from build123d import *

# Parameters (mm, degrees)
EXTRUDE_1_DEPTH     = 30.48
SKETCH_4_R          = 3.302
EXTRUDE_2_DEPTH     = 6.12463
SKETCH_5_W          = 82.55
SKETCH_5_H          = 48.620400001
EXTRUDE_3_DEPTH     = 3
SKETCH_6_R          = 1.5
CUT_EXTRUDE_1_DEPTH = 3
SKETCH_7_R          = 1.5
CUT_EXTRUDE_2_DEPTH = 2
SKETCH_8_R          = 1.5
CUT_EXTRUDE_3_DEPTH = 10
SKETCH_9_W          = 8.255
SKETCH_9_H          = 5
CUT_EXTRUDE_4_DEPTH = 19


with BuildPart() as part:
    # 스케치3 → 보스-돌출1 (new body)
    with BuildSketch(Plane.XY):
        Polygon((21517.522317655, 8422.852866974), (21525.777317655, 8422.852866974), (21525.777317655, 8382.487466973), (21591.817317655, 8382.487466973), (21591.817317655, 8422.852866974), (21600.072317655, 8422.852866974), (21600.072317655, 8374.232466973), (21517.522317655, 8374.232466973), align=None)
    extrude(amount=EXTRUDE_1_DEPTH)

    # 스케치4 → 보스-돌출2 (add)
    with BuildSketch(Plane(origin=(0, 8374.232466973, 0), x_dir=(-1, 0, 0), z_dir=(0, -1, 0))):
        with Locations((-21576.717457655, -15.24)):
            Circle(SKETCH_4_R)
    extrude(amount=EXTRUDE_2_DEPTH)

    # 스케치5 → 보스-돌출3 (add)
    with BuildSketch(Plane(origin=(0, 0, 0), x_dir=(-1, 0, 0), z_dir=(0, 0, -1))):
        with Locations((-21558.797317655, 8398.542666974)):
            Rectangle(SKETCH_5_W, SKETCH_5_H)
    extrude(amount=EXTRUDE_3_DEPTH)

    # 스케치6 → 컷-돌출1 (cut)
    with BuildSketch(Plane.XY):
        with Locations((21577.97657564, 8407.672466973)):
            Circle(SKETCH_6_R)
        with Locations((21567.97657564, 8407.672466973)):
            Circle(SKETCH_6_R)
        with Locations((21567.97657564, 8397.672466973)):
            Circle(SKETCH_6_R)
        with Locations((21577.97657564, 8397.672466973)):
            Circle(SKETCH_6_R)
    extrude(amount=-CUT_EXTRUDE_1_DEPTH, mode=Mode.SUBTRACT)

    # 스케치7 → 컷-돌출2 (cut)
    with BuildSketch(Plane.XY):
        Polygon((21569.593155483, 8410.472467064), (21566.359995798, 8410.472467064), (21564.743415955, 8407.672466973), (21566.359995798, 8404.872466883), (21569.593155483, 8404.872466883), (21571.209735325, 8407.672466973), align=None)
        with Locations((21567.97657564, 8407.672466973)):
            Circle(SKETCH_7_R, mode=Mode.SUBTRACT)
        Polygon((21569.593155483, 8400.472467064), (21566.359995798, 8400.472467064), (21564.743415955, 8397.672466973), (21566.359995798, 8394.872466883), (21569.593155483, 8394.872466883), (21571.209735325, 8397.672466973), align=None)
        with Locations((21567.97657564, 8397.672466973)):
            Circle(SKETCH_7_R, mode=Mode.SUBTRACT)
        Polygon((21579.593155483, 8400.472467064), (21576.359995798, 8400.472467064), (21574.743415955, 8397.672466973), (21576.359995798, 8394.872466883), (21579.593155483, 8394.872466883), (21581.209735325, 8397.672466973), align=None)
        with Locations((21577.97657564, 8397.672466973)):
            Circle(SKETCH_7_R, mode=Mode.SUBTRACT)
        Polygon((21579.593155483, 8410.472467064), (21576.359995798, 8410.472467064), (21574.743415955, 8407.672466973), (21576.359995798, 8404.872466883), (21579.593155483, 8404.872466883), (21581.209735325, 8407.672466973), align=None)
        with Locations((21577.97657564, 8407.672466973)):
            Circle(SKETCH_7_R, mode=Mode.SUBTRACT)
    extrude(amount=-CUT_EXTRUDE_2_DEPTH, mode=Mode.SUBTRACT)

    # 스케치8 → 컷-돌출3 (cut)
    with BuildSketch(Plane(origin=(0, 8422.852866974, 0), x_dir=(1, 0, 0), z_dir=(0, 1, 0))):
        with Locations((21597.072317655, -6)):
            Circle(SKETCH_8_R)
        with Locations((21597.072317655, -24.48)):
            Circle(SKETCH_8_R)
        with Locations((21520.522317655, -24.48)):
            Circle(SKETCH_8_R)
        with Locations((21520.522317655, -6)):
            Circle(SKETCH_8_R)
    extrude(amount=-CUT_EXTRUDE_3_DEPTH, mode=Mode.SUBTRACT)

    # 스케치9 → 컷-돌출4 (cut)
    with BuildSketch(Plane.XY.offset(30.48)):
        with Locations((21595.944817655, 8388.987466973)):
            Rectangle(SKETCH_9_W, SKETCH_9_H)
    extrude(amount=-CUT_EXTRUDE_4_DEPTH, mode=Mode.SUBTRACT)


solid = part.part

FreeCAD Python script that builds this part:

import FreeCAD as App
import Part
import Sketcher
Q = App.Units.Quantity

doc = App.newDocument("Part")
body = doc.addObject("PartDesign::Body", "Body")

# Sketch on XY plane
sketch1 = body.newObject("Sketcher::SketchObject", "Sketch")
sketch1.AttachmentSupport = (doc.getObject("XY_Plane"), [""])
sketch1.MapMode = "FlatFace"
sketch1.addGeometry(Part.LineSegment(App.Vector(21525.777318, 8422.852867, 0), App.Vector(21517.522318, 8422.852867, 0)), False)
sketch1.addGeometry(Part.LineSegment(App.Vector(21517.522318, 8422.852867, 0), App.Vector(21517.522318, 8374.232467, 0)), False)
sketch1.addGeometry(Part.LineSegment(App.Vector(21517.522318, 8374.232467, 0), App.Vector(21600.072318, 8374.232467, 0)), False)
sketch1.addGeometry(Part.LineSegment(App.Vector(21600.072318, 8374.232467, 0), App.Vector(21600.072318, 8422.852867, 0)), False)
sketch1.addGeometry(Part.LineSegment(App.Vector(21600.072318, 8422.852867, 0), App.Vector(21591.817318, 8422.852867, 0)), False)
sketch1.addGeometry(Part.LineSegment(App.Vector(21591.817318, 8422.852867, 0), App.Vector(21591.817318, 8382.487467, 0)), False)
sketch1.addGeometry(Part.LineSegment(App.Vector(21591.817318, 8382.487467, 0), App.Vector(21525.777318, 8382.487467, 0)), False)
sketch1.addGeometry(Part.LineSegment(App.Vector(21525.777318, 8382.487467, 0), App.Vector(21525.777318, 8422.852867, 0)), False)
sketch1.addConstraint(Sketcher.Constraint("Coincident", 0, 2, 1, 1))
sketch1.addConstraint(Sketcher.Constraint("Coincident", 1, 2, 2, 1))
sketch1.addConstraint(Sketcher.Constraint("Coincident", 2, 2, 3, 1))
sketch1.addConstraint(Sketcher.Constraint("Coincident", 3, 2, 4, 1))
sketch1.addConstraint(Sketcher.Constraint("Coincident", 4, 2, 5, 1))
sketch1.addConstraint(Sketcher.Constraint("Coincident", 5, 2, 6, 1))
sketch1.addConstraint(Sketcher.Constraint("Coincident", 6, 2, 7, 1))
sketch1.addConstraint(Sketcher.Constraint("Coincident", 7, 2, 0, 1))
sketch1.addConstraint(Sketcher.Constraint("Horizontal", 0))
sketch1.addConstraint(Sketcher.Constraint("Vertical", 1))
sketch1.addConstraint(Sketcher.Constraint("Horizontal", 2))
sketch1.addConstraint(Sketcher.Constraint("Vertical", 3))
sketch1.addConstraint(Sketcher.Constraint("Horizontal", 4))
sketch1.addConstraint(Sketcher.Constraint("Vertical", 5))
sketch1.addConstraint(Sketcher.Constraint("Horizontal", 6))
sketch1.addConstraint(Sketcher.Constraint("Vertical", 7))
sketch1.addConstraint(Sketcher.Constraint("Horizontal", 0, 2, 3, 2))
sketch1.addConstraint(Sketcher.Constraint("Equal", 0, 4))
sketch1.addConstraint(Sketcher.Constraint("DistanceX", 2, 1, 2, 2, 82.55))
sketch1.addConstraint(Sketcher.Constraint("DistanceX", 6, 2, 6, 1, 66.04))
sketch1.addConstraint(Sketcher.Constraint("DistanceY", 1, 2, 1, 1, 48.6204))
sketch1.addConstraint(Sketcher.Constraint("DistanceY", 5, 2, 5, 1, 40.3654))
sketch1.addConstraint(Sketcher.Constraint("DistanceX", -1, 1, 0, 2, 21517.522318))
sketch1.addConstraint(Sketcher.Constraint("DistanceY", -1, 1, 0, 2, 8422.852867))
pad1 = body.newObject("PartDesign::Pad", "Pad")
pad1.Profile = sketch1
pad1.Length = 30.48

# Sketch on XZ plane
sketch2 = body.newObject("Sketcher::SketchObject", "Sketch001")
sketch2.AttachmentSupport = (doc.getObject("XZ_Plane"), [""])
sketch2.MapMode = "FlatFace"
sketch2.AttachmentOffset = App.Placement(App.Vector(0, 0, -8374.232467), App.Rotation())
sketch2.addGeometry(Part.Circle(App.Vector(21576.717458, 15.24, 0), App.Vector(0, 0, 1), 3.302), False)
sketch2.addConstraint(Sketcher.Constraint("Diameter", 0, 6.604))
sketch2.addConstraint(Sketcher.Constraint("DistanceY", -1, 1, 0, 3, 15.24))
sketch2.addConstraint(Sketcher.Constraint("DistanceX", -1, 1, 0, 3, 21576.717458))
pad2 = body.newObject("PartDesign::Pad", "Pad001")
pad2.Profile = sketch2
pad2.Length = 6.12463

# Sketch on XY plane
sketch3 = body.newObject("Sketcher::SketchObject", "Sketch002")
sketch3.AttachmentSupport = (doc.getObject("XY_Plane"), [""])
sketch3.MapMode = "FlatFace"
sketch3.addGeometry(Part.LineSegment(App.Vector(21600.072318, 8422.852867, 0), App.Vector(21600.072318, 8374.232467, 0)), False)
sketch3.addGeometry(Part.LineSegment(App.Vector(21600.072318, 8374.232467, 0), App.Vector(21517.522318, 8374.232467, 0)), False)
sketch3.addGeometry(Part.LineSegment(App.Vector(21517.522318, 8374.232467, 0), App.Vector(21517.522318, 8422.852867, 0)), False)
sketch3.addGeometry(Part.LineSegment(App.Vector(21517.522318, 8422.852867, 0), App.Vector(21600.072318, 8422.852867, 0)), False)
sketch3.addConstraint(Sketcher.Constraint("Coincident", 0, 2, 1, 1))
sketch3.addConstraint(Sketcher.Constraint("Coincident", 1, 2, 2, 1))
sketch3.addConstraint(Sketcher.Constraint("Coincident", 2, 2, 3, 1))
sketch3.addConstraint(Sketcher.Constraint("Coincident", 3, 2, 0, 1))
sketch3.addConstraint(Sketcher.Constraint("Vertical", 0))
sketch3.addConstraint(Sketcher.Constraint("Horizontal", 1))
sketch3.addConstraint(Sketcher.Constraint("Vertical", 2))
sketch3.addConstraint(Sketcher.Constraint("Horizontal", 3))
sketch3.addConstraint(Sketcher.Constraint("DistanceX", 1, 2, 1, 1, 82.55))
sketch3.addConstraint(Sketcher.Constraint("DistanceY", 0, 2, 0, 1, 48.6204))
sketch3.addConstraint(Sketcher.Constraint("DistanceX", -1, 1, 0, 2, 21600.072318))
sketch3.addConstraint(Sketcher.Constraint("DistanceY", -1, 1, 0, 2, 8374.232467))
pad3 = body.newObject("PartDesign::Pad", "Pad002")
pad3.Profile = sketch3
pad3.Length = 3
pad3.Reversed = True

# Sketch on XY plane
sketch4 = body.newObject("Sketcher::SketchObject", "Sketch003")
sketch4.AttachmentSupport = (doc.getObject("XY_Plane"), [""])
sketch4.MapMode = "FlatFace"
sketch4.addGeometry(Part.Circle(App.Vector(21577.976576, 8407.672467, 0), App.Vector(0, 0, 1), 1.5), False)
sketch4.addGeometry(Part.Circle(App.Vector(21567.976576, 8407.672467, 0), App.Vector(0, 0, 1), 1.5), False)
sketch4.addGeometry(Part.Circle(App.Vector(21567.976576, 8397.672467, 0), App.Vector(0, 0, 1), 1.5), False)
sketch4.addGeometry(Part.Circle(App.Vector(21577.976576, 8397.672467, 0), App.Vector(0, 0, 1), 1.5), False)
sketch4.addConstraint(Sketcher.Constraint("Equal", 0, 1))
sketch4.addConstraint(Sketcher.Constraint("Equal", 1, 2))
sketch4.addConstraint(Sketcher.Constraint("Equal", 2, 3))
sketch4.addConstraint(Sketcher.Constraint("Horizontal", 0, 3, 1, 3))
sketch4.addConstraint(Sketcher.Constraint("Horizontal", 2, 3, 3, 3))
sketch4.addConstraint(Sketcher.Constraint("Vertical", 1, 3, 2, 3))
sketch4.addConstraint(Sketcher.Constraint("Vertical", 0, 3, 3, 3))
sketch4.addConstraint(Sketcher.Constraint("Diameter", 0, 3.0))
sketch4.addConstraint(Sketcher.Constraint("DistanceX", 1, 3, 0, 3, 10.0))
sketch4.addConstraint(Sketcher.Constraint("DistanceY", 2, 3, 1, 3, 10.0))
sketch4.addConstraint(Sketcher.Constraint("DistanceX", -1, 1, 0, 3, 21577.976576))
sketch4.addConstraint(Sketcher.Constraint("DistanceY", -1, 1, 0, 3, 8407.672467))
pocket1 = body.newObject("PartDesign::Pocket", "Pocket")
pocket1.Profile = sketch4
pocket1.Length = 3

# Sketch on XY plane
sketch5 = body.newObject("Sketcher::SketchObject", "Sketch004")
sketch5.AttachmentSupport = (doc.getObject("XY_Plane"), [""])
sketch5.MapMode = "FlatFace"
sketch5.addGeometry(Part.LineSegment(App.Vector(21569.593155, 8410.472467, 0), App.Vector(21566.359996, 8410.472467, 0)), False)
sketch5.addGeometry(Part.LineSegment(App.Vector(21566.359996, 8410.472467, 0), App.Vector(21564.743416, 8407.672467, 0)), False)
sketch5.addGeometry(Part.LineSegment(App.Vector(21564.743416, 8407.672467, 0), App.Vector(21566.359996, 8404.872467, 0)), False)
sketch5.addGeometry(Part.LineSegment(App.Vector(21566.359996, 8404.872467, 0), App.Vector(21569.593155, 8404.872467, 0)), False)
sketch5.addGeometry(Part.LineSegment(App.Vector(21569.593155, 8404.872467, 0), App.Vector(21571.209735, 8407.672467, 0)), False)
sketch5.addGeometry(Part.LineSegment(App.Vector(21571.209735, 8407.672467, 0), App.Vector(21569.593155, 8410.472467, 0)), False)
sketch5.addGeometry(Part.Circle(App.Vector(21567.976576, 8407.672467, 0), App.Vector(0, 0, 1), 1.5), False)
sketch5.addGeometry(Part.LineSegment(App.Vector(21569.593155, 8400.472467, 0), App.Vector(21566.359996, 8400.472467, 0)), False)
sketch5.addGeometry(Part.LineSegment(App.Vector(21566.359996, 8400.472467, 0), App.Vector(21564.743416, 8397.672467, 0)), False)
sketch5.addGeometry(Part.LineSegment(App.Vector(21564.743416, 8397.672467, 0), App.Vector(21566.359996, 8394.872467, 0)), False)
sketch5.addGeometry(Part.LineSegment(App.Vector(21566.359996, 8394.872467, 0), App.Vector(21569.593155, 8394.872467, 0)), False)
sketch5.addGeometry(Part.LineSegment(App.Vector(21569.593155, 8394.872467, 0), App.Vector(21571.209735, 8397.672467, 0)), False)
sketch5.addGeometry(Part.LineSegment(App.Vector(21571.209735, 8397.672467, 0), App.Vector(21569.593155, 8400.472467, 0)), False)
sketch5.addGeometry(Part.Circle(App.Vector(21567.976576, 8397.672467, 0), App.Vector(0, 0, 1), 1.5), False)
sketch5.addGeometry(Part.LineSegment(App.Vector(21579.593155, 8400.472467, 0), App.Vector(21576.359996, 8400.472467, 0)), False)
sketch5.addGeometry(Part.LineSegment(App.Vector(21576.359996, 8400.472467, 0), App.Vector(21574.743416, 8397.672467, 0)), False)
sketch5.addGeometry(Part.LineSegment(App.Vector(21574.743416, 8397.672467, 0), App.Vector(21576.359996, 8394.872467, 0)), False)
sketch5.addGeometry(Part.LineSegment(App.Vector(21576.359996, 8394.872467, 0), App.Vector(21579.593155, 8394.872467, 0)), False)
sketch5.addGeometry(Part.LineSegment(App.Vector(21579.593155, 8394.872467, 0), App.Vector(21581.209735, 8397.672467, 0)), False)
sketch5.addGeometry(Part.LineSegment(App.Vector(21581.209735, 8397.672467, 0), App.Vector(21579.593155, 8400.472467, 0)), False)
sketch5.addGeometry(Part.Circle(App.Vector(21577.976576, 8397.672467, 0), App.Vector(0, 0, 1), 1.5), False)
sketch5.addGeometry(Part.LineSegment(App.Vector(21579.593155, 8410.472467, 0), App.Vector(21576.359996, 8410.472467, 0)), False)
sketch5.addGeometry(Part.LineSegment(App.Vector(21576.359996, 8410.472467, 0), App.Vector(21574.743416, 8407.672467, 0)), False)
sketch5.addGeometry(Part.LineSegment(App.Vector(21574.743416, 8407.672467, 0), App.Vector(21576.359996, 8404.872467, 0)), False)
sketch5.addGeometry(Part.LineSegment(App.Vector(21576.359996, 8404.872467, 0), App.Vector(21579.593155, 8404.872467, 0)), False)
sketch5.addGeometry(Part.LineSegment(App.Vector(21579.593155, 8404.872467, 0), App.Vector(21581.209735, 8407.672467, 0)), False)
sketch5.addGeometry(Part.LineSegment(App.Vector(21581.209735, 8407.672467, 0), App.Vector(21579.593155, 8410.472467, 0)), False)
sketch5.addGeometry(Part.Circle(App.Vector(21577.976576, 8407.672467, 0), App.Vector(0, 0, 1), 1.5), False)
sketch5.addConstraint(Sketcher.Constraint("Coincident", 0, 2, 1, 1))
sketch5.addConstraint(Sketcher.Constraint("Coincident", 1, 2, 2, 1))
sketch5.addConstraint(Sketcher.Constraint("Coincident", 2, 2, 3, 1))
sketch5.addConstraint(Sketcher.Constraint("Coincident", 3, 2, 4, 1))
sketch5.addConstraint(Sketcher.Constraint("Coincident", 4, 2, 5, 1))
sketch5.addConstraint(Sketcher.Constraint("Coincident", 5, 2, 0, 1))
sketch5.addConstraint(Sketcher.Constraint("Coincident", 7, 2, 8, 1))
sketch5.addConstraint(Sketcher.Constraint("Coincident", 8, 2, 9, 1))
sketch5.addConstraint(Sketcher.Constraint("Coincident", 9, 2, 10, 1))
sketch5.addConstraint(Sketcher.Constraint("Coincident", 10, 2, 11, 1))
sketch5.addConstraint(Sketcher.Constraint("Coincident", 11, 2, 12, 1))
sketch5.addConstraint(Sketcher.Constraint("Coincident", 12, 2, 7, 1))
sketch5.addConstraint(Sketcher.Constraint("Coincident", 14, 2, 15, 1))
sketch5.addConstraint(Sketcher.Constraint("Coincident", 15, 2, 16, 1))
sketch5.addConstraint(Sketcher.Constraint("Coincident", 16, 2, 17, 1))
sketch5.addConstraint(Sketcher.Constraint("Coincident", 17, 2, 18, 1))
sketch5.addConstraint(Sketcher.Constraint("Coincident", 18, 2, 19, 1))
sketch5.addConstraint(Sketcher.Constraint("Coincident", 19, 2, 14, 1))
sketch5.addConstraint(Sketcher.Constraint("Coincident", 21, 2, 22, 1))
sketch5.addConstraint(Sketcher.Constraint("Coincident", 22, 2, 23, 1))
sketch5.addConstraint(Sketcher.Constraint("Coincident", 23, 2, 24, 1))
sketch5.addConstraint(Sketcher.Constraint("Coincident", 24, 2, 25, 1))
sketch5.addConstraint(Sketcher.Constraint("Coincident", 25, 2, 26, 1))
sketch5.addConstraint(Sketcher.Constraint("Coincident", 26, 2, 21, 1))
sketch5.addConstraint(Sketcher.Constraint("Horizontal", 0))
sketch5.addConstraint(Sketcher.Constraint("Horizontal", 3))
sketch5.addConstraint(Sketcher.Constraint("Horizontal", 7))
sketch5.addConstraint(Sketcher.Constraint("Horizontal", 10))
sketch5.addConstraint(Sketcher.Constraint("Horizontal", 14))
sketch5.addConstraint(Sketcher.Constraint("Horizontal", 17))
sketch5.addConstraint(Sketcher.Constraint("Horizontal", 21))
sketch5.addConstraint(Sketcher.Constraint("Horizontal", 24))
sketch5.addConstraint(Sketcher.Constraint("Equal", 6, 13))
sketch5.addConstraint(Sketcher.Constraint("Equal", 13, 20))
sketch5.addConstraint(Sketcher.Constraint("Equal", 20, 27))
sketch5.addConstraint(Sketcher.Constraint("Parallel", 1, 4))
sketch5.addConstraint(Sketcher.Constraint("Parallel", 2, 5))
sketch5.addConstraint(Sketcher.Constraint("Parallel", 4, 8))
sketch5.addConstraint(Sketcher.Constraint("Parallel", 5, 9))
sketch5.addConstraint(Sketcher.Constraint("Parallel", 8, 11))
sketch5.addConstraint(Sketcher.Constraint("Parallel", 9, 12))
sketch5.addConstraint(Sketcher.Constraint("Parallel", 11, 15))
sketch5.addConstraint(Sketcher.Constraint("Parallel", 12, 16))
sketch5.addConstraint(Sketcher.Constraint("Parallel", 15, 18))
sketch5.addConstraint(Sketcher.Constraint("Parallel", 16, 19))
sketch5.addConstraint(Sketcher.Constraint("Parallel", 18, 22))
sketch5.addConstraint(Sketcher.Constraint("Parallel", 19, 23))
sketch5.addConstraint(Sketcher.Constraint("Parallel", 22, 25))
sketch5.addConstraint(Sketcher.Constraint("Parallel", 23, 26))
sketch5.addConstraint(Sketcher.Constraint("Horizontal", 13, 3, 20, 3))
sketch5.addConstraint(Sketcher.Constraint("Horizontal", 6, 3, 27, 3))
sketch5.addConstraint(Sketcher.Constraint("Horizontal", 27, 3, 1, 2))
sketch5.addConstraint(Sketcher.Constraint("Horizontal", 1, 2, 4, 2))
sketch5.addConstraint(Sketcher.Constraint("Horizontal", 20, 3, 8, 2))
sketch5.addConstraint(Sketcher.Constraint("Horizontal", 8, 2, 11, 2))
sketch5.addConstraint(Sketcher.Constraint("Horizontal", 12, 2, 14, 2))
sketch5.addConstraint(Sketcher.Constraint("Horizontal", 11, 2, 15, 2))
sketch5.addConstraint(Sketcher.Constraint("Horizontal", 10, 2, 16, 2))
sketch5.addConstraint(Sketcher.Constraint("Horizontal", 15, 2, 18, 2))
sketch5.addConstraint(Sketcher.Constraint("Horizontal", 5, 2, 21, 2))
sketch5.addConstraint(Sketcher.Constraint("Horizontal", 4, 2, 22, 2))
sketch5.addConstraint(Sketcher.Constraint("Horizontal", 3, 2, 23, 2))
sketch5.addConstraint(Sketcher.Constraint("Horizontal", 22, 2, 25, 2))
sketch5.addConstraint(Sketcher.Constraint("Vertical", 6, 3, 13, 3))
sketch5.addConstraint(Sketcher.Constraint("Vertical", 20, 3, 27, 3))
sketch5.addConstraint(Sketcher.Constraint("Vertical", 0, 2, 2, 2))
sketch5.addConstraint(Sketcher.Constraint("Vertical", 3, 2, 5, 2))
sketch5.addConstraint(Sketcher.Constraint("Vertical", 2, 2, 7, 2))
sketch5.addConstraint(Sketcher.Constraint("Vertical", 1, 2, 8, 2))
sketch5.addConstraint(Sketcher.Constraint("Vertical", 7, 2, 9, 2))
sketch5.addConstraint(Sketcher.Constraint("Vertical", 5, 2, 10, 2))
sketch5.addConstraint(Sketcher.Constraint("Vertical", 16, 2, 21, 2))
sketch5.addConstraint(Sketcher.Constraint("Vertical", 19, 2, 24, 2))
sketch5.addConstraint(Sketcher.Constraint("Equal", 10, 14))
sketch5.addConstraint(Sketcher.Constraint("Diameter", 6, 3.0))
sketch5.addConstraint(Sketcher.Constraint("Angle", 1, Q("-119.999985 deg")))
sketch5.addConstraint(Sketcher.Constraint("DistanceY", 13, 3, 6, 3, 10.0))
sketch5.addConstraint(Sketcher.Constraint("DistanceX", 13, 3, 20, 3, 10.0))
sketch5.addConstraint(Sketcher.Constraint("DistanceY", 6, 3, 0, 2, 2.8))
sketch5.addConstraint(Sketcher.Constraint("DistanceX", 0, 2, 0, 1, 3.23316))
sketch5.addConstraint(Sketcher.Constraint("DistanceX", 0, 2, 6, 3, 1.61658))
sketch5.addConstraint(Sketcher.Constraint("DistanceX", 14, 2, 20, 3, 1.61658))
sketch5.addConstraint(Sketcher.Constraint("DistanceX", -1, 1, 6, 3, 21567.976576))
sketch5.addConstraint(Sketcher.Constraint("DistanceY", -1, 1, 6, 3, 8407.672467))
pocket2 = body.newObject("PartDesign::Pocket", "Pocket001")
pocket2.Profile = sketch5
pocket2.Length = 2

# Sketch on XZ plane
sketch6 = body.newObject("Sketcher::SketchObject", "Sketch005")
sketch6.AttachmentSupport = (doc.getObject("XZ_Plane"), [""])
sketch6.MapMode = "FlatFace"
sketch6.AttachmentOffset = App.Placement(App.Vector(0, 0, -8422.852867), App.Rotation())
sketch6.addGeometry(Part.Circle(App.Vector(21597.072318, 6, 0), App.Vector(0, 0, 1), 1.5), False)
sketch6.addGeometry(Part.Circle(App.Vector(21597.072318, 24.48, 0), App.Vector(0, 0, 1), 1.5), False)
sketch6.addGeometry(Part.Circle(App.Vector(21520.522318, 24.48, 0), App.Vector(0, 0, 1), 1.5), False)
sketch6.addGeometry(Part.Circle(App.Vector(21520.522318, 6, 0), App.Vector(0, 0, 1), 1.5), False)
sketch6.addConstraint(Sketcher.Constraint("Equal", 0, 1))
sketch6.addConstraint(Sketcher.Constraint("Equal", 1, 2))
sketch6.addConstraint(Sketcher.Constraint("Equal", 2, 3))
sketch6.addConstraint(Sketcher.Constraint("Horizontal", 1, 3, 2, 3))
sketch6.addConstraint(Sketcher.Constraint("Horizontal", 0, 3, 3, 3))
sketch6.addConstraint(Sketcher.Constraint("Vertical", 0, 3, 1, 3))
sketch6.addConstraint(Sketcher.Constraint("Vertical", 2, 3, 3, 3))
sketch6.addConstraint(Sketcher.Constraint("Diameter", 0, 3.0))
sketch6.addConstraint(Sketcher.Constraint("DistanceY", -1, 1, 0, 3, 6.0))
sketch6.addConstraint(Sketcher.Constraint("DistanceY", -1, 1, 1, 3, 24.48))
sketch6.addConstraint(Sketcher.Constraint("DistanceX", 2, 3, 1, 3, 76.55))
sketch6.addConstraint(Sketcher.Constraint("DistanceX", -1, 1, 0, 3, 21597.072318))
pocket3 = body.newObject("PartDesign::Pocket", "Pocket002")
pocket3.Profile = sketch6
pocket3.Length = 10
pocket3.Reversed = True

# Sketch on XY plane
sketch7 = body.newObject("Sketcher::SketchObject", "Sketch006")
sketch7.AttachmentSupport = (doc.getObject("XY_Plane"), [""])
sketch7.MapMode = "FlatFace"
sketch7.AttachmentOffset = App.Placement(App.Vector(0, 0, 30.48), App.Rotation())
sketch7.addGeometry(Part.LineSegment(App.Vector(21591.817318, 8391.487467, 0), App.Vector(21591.817318, 8386.487467, 0)), False)
sketch7.addGeometry(Part.LineSegment(App.Vector(21591.817318, 8386.487467, 0), App.Vector(21600.072318, 8386.487467, 0)), False)
sketch7.addGeometry(Part.LineSegment(App.Vector(21600.072318, 8386.487467, 0), App.Vector(21600.072318, 8391.487467, 0)), False)
sketch7.addGeometry(Part.LineSegment(App.Vector(21600.072318, 8391.487467, 0), App.Vector(21591.817318, 8391.487467, 0)), False)
sketch7.addConstraint(Sketcher.Constraint("Coincident", 0, 2, 1, 1))
sketch7.addConstraint(Sketcher.Constraint("Coincident", 1, 2, 2, 1))
sketch7.addConstraint(Sketcher.Constraint("Coincident", 2, 2, 3, 1))
sketch7.addConstraint(Sketcher.Constraint("Coincident", 3, 2, 0, 1))
sketch7.addConstraint(Sketcher.Constraint("Vertical", 0))
sketch7.addConstraint(Sketcher.Constraint("Horizontal", 1))
sketch7.addConstraint(Sketcher.Constraint("Vertical", 2))
sketch7.addConstraint(Sketcher.Constraint("Horizontal", 3))
sketch7.addConstraint(Sketcher.Constraint("DistanceY", 0, 2, 0, 1, 5.0))
sketch7.addConstraint(Sketcher.Constraint("DistanceX", 1, 1, 1, 2, 8.255))
sketch7.addConstraint(Sketcher.Constraint("DistanceX", -1, 1, 0, 2, 21591.817318))
sketch7.addConstraint(Sketcher.Constraint("DistanceY", -1, 1, 0, 2, 8386.487467))
pocket4 = body.newObject("PartDesign::Pocket", "Pocket003")
pocket4.Profile = sketch7
pocket4.Length = 19

doc.recompute()
